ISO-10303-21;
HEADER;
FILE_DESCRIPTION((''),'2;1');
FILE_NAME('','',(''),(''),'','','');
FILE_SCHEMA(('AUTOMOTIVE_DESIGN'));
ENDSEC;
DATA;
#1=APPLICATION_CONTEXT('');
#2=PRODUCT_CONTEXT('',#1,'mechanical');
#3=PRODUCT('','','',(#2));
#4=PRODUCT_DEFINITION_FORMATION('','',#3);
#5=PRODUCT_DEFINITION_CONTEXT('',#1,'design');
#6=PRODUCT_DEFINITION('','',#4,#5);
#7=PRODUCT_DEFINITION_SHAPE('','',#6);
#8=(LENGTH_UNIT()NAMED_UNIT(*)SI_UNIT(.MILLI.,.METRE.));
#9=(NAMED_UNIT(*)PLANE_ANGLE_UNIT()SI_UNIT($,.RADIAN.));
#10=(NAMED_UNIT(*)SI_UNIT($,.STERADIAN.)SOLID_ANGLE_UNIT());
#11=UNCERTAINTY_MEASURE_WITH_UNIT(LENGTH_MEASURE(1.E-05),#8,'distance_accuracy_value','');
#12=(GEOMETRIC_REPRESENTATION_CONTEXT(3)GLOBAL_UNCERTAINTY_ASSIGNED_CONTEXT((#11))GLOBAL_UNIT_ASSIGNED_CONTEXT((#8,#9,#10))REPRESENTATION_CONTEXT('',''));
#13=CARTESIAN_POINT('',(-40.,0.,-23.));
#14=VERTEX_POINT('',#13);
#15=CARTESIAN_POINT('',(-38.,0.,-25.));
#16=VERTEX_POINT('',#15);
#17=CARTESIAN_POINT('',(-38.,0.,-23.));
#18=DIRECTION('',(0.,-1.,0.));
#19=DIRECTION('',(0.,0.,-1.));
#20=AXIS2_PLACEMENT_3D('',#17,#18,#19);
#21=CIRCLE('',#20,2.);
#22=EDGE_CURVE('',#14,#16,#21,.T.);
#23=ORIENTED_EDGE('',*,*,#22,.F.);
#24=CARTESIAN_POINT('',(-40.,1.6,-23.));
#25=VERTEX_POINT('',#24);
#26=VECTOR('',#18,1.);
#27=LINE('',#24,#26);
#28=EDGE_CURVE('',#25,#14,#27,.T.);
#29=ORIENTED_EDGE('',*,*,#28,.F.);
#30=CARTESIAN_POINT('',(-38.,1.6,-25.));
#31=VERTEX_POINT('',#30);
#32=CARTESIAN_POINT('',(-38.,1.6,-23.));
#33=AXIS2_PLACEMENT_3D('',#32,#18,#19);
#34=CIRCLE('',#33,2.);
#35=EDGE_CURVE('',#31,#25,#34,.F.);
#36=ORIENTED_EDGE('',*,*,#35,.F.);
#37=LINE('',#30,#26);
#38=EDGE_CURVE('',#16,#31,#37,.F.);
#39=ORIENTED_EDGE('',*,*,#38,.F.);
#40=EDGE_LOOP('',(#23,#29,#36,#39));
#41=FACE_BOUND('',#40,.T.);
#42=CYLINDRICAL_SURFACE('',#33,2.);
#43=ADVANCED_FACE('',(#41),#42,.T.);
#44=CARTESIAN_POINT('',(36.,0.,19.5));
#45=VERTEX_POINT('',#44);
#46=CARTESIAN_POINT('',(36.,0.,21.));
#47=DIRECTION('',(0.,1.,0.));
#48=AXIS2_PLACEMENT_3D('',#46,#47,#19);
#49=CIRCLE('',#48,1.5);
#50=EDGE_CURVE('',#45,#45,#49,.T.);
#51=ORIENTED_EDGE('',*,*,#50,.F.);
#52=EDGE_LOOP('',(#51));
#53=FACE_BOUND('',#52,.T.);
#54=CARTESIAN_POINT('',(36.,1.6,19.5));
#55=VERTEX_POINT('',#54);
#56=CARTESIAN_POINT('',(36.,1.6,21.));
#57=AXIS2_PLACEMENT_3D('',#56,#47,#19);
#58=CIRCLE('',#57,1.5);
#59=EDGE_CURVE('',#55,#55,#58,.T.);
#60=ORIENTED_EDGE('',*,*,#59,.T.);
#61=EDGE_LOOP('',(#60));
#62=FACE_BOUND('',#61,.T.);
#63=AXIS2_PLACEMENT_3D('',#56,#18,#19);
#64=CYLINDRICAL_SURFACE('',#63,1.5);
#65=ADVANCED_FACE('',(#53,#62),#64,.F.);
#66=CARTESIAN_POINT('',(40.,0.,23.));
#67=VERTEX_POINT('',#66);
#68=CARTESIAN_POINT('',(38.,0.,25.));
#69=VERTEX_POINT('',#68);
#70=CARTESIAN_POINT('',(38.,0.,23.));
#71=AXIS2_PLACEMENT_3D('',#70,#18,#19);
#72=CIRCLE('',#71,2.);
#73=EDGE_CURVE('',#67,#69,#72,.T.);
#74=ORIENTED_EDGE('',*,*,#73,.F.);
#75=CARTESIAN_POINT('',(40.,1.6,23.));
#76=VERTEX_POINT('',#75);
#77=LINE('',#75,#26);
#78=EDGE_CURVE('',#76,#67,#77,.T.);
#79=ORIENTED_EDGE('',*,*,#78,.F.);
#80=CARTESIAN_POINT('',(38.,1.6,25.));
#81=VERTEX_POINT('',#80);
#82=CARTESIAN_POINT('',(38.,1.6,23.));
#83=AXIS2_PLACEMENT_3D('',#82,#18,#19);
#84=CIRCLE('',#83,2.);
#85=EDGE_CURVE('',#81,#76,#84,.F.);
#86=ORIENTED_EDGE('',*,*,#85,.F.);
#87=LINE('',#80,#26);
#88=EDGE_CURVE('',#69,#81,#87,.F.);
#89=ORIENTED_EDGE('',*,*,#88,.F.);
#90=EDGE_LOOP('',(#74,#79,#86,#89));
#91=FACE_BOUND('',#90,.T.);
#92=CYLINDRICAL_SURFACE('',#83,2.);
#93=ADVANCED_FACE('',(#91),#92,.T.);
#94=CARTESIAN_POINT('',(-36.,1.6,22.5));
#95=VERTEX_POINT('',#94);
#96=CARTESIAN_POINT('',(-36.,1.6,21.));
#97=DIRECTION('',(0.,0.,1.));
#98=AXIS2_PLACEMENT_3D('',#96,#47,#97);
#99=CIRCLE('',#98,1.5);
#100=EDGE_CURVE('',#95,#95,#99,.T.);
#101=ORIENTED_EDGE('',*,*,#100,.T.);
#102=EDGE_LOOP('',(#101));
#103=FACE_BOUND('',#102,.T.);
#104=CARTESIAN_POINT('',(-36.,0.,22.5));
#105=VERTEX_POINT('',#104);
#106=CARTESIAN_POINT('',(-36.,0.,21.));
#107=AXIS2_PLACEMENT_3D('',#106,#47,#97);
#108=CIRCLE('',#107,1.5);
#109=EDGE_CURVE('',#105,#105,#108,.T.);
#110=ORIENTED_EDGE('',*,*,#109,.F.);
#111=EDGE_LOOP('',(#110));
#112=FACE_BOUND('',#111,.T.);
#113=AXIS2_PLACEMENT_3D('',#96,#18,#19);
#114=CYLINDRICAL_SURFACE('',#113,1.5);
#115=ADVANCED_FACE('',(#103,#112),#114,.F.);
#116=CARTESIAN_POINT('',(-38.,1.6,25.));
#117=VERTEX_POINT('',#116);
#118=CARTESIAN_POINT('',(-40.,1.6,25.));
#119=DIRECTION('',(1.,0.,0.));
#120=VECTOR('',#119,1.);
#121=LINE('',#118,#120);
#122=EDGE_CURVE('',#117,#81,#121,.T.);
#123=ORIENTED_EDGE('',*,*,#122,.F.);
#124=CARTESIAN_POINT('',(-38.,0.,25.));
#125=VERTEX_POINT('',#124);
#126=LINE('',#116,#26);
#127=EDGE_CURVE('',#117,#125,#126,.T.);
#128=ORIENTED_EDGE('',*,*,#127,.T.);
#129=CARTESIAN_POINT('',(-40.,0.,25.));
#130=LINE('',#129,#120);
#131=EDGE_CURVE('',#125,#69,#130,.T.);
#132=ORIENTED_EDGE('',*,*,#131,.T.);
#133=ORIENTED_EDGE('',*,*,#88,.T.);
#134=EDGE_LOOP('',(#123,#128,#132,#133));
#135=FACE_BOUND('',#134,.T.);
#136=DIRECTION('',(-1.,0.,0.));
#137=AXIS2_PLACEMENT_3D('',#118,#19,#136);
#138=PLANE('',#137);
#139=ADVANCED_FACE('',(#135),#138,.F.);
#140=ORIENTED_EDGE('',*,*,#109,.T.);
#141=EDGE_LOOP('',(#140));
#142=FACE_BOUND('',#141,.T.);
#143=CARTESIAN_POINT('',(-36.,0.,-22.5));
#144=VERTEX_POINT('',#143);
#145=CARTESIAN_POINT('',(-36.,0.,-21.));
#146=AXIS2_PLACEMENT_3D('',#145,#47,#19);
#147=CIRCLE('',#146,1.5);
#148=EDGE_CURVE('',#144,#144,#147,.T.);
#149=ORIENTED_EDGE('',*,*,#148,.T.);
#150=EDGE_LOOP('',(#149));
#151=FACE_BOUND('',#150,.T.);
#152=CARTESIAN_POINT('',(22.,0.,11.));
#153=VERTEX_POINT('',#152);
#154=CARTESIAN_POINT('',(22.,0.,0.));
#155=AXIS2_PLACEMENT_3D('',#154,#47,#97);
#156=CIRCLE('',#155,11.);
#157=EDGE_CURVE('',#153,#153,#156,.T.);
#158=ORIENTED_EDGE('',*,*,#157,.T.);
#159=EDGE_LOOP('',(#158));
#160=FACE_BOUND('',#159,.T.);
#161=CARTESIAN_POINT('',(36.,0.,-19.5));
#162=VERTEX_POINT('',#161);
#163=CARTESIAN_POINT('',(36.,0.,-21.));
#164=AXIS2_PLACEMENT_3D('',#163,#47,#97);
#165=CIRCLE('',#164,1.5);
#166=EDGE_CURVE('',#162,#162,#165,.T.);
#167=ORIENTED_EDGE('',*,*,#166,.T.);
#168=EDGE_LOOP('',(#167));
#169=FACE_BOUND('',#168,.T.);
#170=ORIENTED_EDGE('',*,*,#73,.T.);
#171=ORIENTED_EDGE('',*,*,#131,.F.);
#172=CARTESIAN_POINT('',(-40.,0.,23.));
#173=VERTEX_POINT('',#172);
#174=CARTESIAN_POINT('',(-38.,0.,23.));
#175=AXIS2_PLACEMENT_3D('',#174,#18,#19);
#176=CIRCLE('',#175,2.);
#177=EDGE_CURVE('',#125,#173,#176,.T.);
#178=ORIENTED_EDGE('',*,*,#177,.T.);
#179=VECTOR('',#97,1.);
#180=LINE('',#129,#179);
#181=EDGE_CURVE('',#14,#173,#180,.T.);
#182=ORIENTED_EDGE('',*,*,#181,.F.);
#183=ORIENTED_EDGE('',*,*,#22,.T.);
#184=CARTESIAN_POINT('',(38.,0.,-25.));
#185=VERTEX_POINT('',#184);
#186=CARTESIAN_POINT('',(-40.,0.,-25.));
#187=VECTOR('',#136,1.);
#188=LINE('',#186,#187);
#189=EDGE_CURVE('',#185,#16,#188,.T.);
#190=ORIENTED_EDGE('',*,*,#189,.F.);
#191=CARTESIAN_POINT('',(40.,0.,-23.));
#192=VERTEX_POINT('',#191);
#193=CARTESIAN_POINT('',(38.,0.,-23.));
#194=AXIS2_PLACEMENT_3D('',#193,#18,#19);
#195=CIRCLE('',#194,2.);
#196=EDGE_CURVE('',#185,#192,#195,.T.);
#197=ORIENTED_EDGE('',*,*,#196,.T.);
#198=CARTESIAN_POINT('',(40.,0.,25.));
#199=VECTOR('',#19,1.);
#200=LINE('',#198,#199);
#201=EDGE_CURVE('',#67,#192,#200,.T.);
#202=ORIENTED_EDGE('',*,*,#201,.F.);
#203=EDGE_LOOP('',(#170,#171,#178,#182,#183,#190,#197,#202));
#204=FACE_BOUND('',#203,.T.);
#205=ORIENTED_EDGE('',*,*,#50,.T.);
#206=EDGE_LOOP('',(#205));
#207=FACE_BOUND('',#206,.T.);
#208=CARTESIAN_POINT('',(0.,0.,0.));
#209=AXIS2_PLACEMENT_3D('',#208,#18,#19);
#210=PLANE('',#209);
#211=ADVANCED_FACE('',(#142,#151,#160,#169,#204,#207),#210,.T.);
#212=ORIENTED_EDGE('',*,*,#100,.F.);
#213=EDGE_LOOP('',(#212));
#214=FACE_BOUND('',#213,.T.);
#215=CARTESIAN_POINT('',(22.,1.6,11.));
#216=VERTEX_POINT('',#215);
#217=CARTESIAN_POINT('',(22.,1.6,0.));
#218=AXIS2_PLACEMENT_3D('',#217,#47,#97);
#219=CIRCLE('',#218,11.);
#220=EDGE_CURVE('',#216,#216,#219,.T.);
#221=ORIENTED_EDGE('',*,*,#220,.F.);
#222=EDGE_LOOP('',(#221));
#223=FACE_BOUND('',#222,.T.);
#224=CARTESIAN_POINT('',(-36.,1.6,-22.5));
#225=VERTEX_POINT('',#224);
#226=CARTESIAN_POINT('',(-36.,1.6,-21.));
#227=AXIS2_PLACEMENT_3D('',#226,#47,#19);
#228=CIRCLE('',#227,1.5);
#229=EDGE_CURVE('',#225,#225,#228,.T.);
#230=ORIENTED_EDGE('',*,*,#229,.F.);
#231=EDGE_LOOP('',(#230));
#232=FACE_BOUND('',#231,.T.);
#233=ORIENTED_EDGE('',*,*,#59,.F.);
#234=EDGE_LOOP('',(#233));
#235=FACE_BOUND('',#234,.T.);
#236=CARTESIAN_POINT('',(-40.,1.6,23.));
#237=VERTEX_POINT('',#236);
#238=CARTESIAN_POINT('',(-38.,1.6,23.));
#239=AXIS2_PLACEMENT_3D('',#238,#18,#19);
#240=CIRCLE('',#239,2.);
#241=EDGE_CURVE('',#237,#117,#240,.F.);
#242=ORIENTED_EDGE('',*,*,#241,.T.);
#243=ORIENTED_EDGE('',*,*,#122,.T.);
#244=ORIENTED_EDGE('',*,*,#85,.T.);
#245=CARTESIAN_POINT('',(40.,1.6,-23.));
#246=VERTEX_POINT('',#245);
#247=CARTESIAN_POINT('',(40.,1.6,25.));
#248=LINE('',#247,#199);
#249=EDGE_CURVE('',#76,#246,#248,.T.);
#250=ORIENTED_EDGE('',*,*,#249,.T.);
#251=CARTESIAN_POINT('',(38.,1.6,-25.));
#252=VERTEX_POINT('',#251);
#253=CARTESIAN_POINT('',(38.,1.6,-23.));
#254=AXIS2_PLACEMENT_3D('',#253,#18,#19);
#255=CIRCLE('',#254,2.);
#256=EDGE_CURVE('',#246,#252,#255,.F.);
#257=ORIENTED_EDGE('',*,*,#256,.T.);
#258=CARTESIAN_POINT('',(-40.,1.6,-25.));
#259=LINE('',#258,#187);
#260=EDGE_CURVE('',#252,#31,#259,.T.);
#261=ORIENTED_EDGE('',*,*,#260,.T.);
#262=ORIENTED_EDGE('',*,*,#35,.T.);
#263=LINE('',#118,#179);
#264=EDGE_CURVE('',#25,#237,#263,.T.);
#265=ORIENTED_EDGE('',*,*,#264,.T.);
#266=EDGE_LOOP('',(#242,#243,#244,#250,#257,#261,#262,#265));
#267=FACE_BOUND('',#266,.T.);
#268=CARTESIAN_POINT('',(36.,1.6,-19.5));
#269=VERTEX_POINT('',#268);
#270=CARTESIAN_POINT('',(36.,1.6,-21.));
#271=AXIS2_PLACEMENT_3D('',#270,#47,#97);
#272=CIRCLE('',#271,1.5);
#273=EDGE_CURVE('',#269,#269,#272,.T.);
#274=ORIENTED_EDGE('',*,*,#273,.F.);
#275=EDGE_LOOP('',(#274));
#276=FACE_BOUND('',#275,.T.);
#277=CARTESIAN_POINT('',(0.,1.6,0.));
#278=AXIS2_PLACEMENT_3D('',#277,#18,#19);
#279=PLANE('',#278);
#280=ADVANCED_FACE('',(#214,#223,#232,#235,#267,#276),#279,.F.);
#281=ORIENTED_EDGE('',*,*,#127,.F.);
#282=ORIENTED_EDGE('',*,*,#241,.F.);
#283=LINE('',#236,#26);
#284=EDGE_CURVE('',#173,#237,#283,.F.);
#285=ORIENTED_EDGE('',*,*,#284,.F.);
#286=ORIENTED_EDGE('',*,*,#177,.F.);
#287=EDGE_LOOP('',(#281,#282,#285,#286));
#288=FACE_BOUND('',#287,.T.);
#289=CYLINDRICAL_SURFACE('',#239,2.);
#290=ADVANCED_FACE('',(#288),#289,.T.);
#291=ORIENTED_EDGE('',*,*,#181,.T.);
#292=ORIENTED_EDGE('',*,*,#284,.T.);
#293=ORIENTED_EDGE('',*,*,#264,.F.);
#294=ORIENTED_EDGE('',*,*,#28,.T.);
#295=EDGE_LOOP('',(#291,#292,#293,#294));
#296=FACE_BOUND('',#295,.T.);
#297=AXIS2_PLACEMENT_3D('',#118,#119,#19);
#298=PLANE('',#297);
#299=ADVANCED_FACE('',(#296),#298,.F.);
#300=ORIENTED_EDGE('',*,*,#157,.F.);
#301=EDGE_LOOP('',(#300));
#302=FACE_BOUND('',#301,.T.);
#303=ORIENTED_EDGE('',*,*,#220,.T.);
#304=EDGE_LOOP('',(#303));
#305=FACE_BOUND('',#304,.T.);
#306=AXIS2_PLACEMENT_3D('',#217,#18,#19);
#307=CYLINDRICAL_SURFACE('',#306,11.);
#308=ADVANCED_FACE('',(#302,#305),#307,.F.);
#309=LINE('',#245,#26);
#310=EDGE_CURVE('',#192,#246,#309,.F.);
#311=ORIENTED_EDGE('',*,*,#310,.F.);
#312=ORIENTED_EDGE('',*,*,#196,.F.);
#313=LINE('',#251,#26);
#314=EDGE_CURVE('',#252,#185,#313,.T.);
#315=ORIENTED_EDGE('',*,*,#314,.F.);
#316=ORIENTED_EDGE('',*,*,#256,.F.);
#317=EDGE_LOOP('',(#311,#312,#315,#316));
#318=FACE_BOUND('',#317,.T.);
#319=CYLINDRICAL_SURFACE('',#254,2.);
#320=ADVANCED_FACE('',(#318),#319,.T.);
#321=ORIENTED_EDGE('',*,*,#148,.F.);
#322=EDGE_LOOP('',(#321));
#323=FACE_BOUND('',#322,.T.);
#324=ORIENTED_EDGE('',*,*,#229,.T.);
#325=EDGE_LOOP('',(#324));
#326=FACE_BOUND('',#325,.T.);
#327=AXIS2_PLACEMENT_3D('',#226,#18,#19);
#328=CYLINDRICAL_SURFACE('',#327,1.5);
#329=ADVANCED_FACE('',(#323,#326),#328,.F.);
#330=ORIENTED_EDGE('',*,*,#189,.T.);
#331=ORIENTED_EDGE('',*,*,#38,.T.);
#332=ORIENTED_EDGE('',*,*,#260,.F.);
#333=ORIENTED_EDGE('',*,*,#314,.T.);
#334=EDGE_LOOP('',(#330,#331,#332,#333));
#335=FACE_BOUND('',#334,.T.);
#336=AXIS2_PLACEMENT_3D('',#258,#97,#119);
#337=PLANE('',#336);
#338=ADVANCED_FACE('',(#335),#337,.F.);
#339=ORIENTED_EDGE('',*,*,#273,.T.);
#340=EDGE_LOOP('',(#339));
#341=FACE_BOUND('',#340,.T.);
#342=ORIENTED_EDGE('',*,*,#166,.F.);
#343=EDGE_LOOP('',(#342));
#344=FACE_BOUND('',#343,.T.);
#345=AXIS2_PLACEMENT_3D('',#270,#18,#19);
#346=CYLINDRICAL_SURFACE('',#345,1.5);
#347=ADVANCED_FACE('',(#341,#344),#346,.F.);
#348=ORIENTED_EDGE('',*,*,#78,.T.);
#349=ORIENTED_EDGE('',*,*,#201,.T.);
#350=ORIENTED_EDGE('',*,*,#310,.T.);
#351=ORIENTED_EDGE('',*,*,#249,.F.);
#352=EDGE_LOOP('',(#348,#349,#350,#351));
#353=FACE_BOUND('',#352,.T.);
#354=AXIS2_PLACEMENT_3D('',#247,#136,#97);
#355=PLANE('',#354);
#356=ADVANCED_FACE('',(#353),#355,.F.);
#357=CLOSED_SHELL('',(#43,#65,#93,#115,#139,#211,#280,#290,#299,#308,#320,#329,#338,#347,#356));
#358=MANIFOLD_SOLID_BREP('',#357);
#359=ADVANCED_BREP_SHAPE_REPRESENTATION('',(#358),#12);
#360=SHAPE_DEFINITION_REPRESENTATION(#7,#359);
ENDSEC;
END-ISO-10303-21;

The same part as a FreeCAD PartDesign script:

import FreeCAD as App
import Part
import Sketcher
Q = App.Units.Quantity


def edges_at(feature, points):
    """Names of the edges that pass closest to the given points."""
    edges = feature.Shape.Edges
    near = lambda p: min(range(len(edges)), key=lambda i: edges[i].distToShape(Part.Vertex(*p))[0])
    return sorted({f"Edge{near(p) + 1}" for p in points})

doc = App.newDocument("Part")
params = doc.addObject("Spreadsheet::Sheet", "Params")
for row, (alias, value) in enumerate([
    ("sketch1_diameter", "3 mm"),
    ("sketch1_diameter2", "22 mm"),
    ("sketch1_width", "80 mm"),
    ("sketch1_height", "50 mm"),
    ("pad1_length", "1.6 mm"),
    ("fillet_radius", "2 mm"),
], start=1):
    params.set(f"A{row}", alias)
    params.set(f"B{row}", "=" + value)
    params.setAlias(f"B{row}", alias)

body = doc.addObject("PartDesign::Body", "Body")

# Sketch on XZ plane
sketch1 = body.newObject("Sketcher::SketchObject", "Sketch")
sketch1.AttachmentSupport = (doc.getObject("XZ_Plane"), [""])
sketch1.MapMode = "FlatFace"
sketch1.addGeometry([
    Part.LineSegment(App.Vector(-40, -25, 0), App.Vector(-40, 25, 0)),  # 0
    Part.LineSegment(App.Vector(-40, 25, 0), App.Vector(40, 25, 0)),  # 1
    Part.LineSegment(App.Vector(40, 25, 0), App.Vector(40, -25, 0)),  # 2
    Part.LineSegment(App.Vector(40, -25, 0), App.Vector(-40, -25, 0)),  # 3
    Part.Circle(App.Vector(-36, 21, 0), App.Vector(0, 0, 1), 1.5),  # 4
    Part.Circle(App.Vector(36, 21, 0), App.Vector(0, 0, 1), 1.5),  # 5
    Part.Circle(App.Vector(-36, -21, 0), App.Vector(0, 0, 1), 1.5),  # 6
    Part.Circle(App.Vector(22, 0, 0), App.Vector(0, 0, 1), 11),  # 7
    Part.Circle(App.Vector(36, -21, 0), App.Vector(0, 0, 1), 1.5),  # 8
], False)
sketch1.addConstraint([
    Sketcher.Constraint("Coincident", 0, 2, 1, 1),
    Sketcher.Constraint("Coincident", 1, 2, 2, 1),
    Sketcher.Constraint("Coincident", 2, 2, 3, 1),
    Sketcher.Constraint("Coincident", 3, 2, 0, 1),
    Sketcher.Constraint("Vertical", 0),
    Sketcher.Constraint("Horizontal", 1),
    Sketcher.Constraint("Vertical", 2),
    Sketcher.Constraint("Horizontal", 3),
    Sketcher.Constraint("Equal", 4, 5),
    Sketcher.Constraint("Equal", 5, 6),
    Sketcher.Constraint("Equal", 6, 8),
    Sketcher.Constraint("Symmetric", 5, 3, 6, 3, -1, 1),
    Sketcher.Constraint("Symmetric", 4, 3, 8, 3, -1, 1),
    Sketcher.Constraint("Symmetric", 0, 2, 2, 2, -1, 1),
    Sketcher.Constraint("Symmetric", 4, 3, 5, 3, -2),
    Sketcher.Constraint("PointOnObject", 7, 3, -1),
    Sketcher.Constraint("Diameter", 4, Q("3 mm")),
    Sketcher.Constraint("Diameter", 7, Q("22 mm")),
    Sketcher.Constraint("DistanceX", 1, 1, 1, 2, Q("80 mm")),
    Sketcher.Constraint("DistanceY", 0, 1, 0, 2, Q("50 mm")),
    Sketcher.Constraint("DistanceX", 4, 3, -1, 1, Q("36 mm")),
    Sketcher.Constraint("DistanceY", -1, 1, 4, 3, Q("21 mm")),
    Sketcher.Constraint("DistanceX", -1, 1, 7, 3, Q("22 mm")),
])
sketch1.setExpression("Constraints[16]", "Params.sketch1_diameter")
sketch1.setExpression("Constraints[17]", "Params.sketch1_diameter2")
sketch1.setExpression("Constraints[18]", "Params.sketch1_width")
sketch1.setExpression("Constraints[19]", "Params.sketch1_height")
pad1 = body.newObject("PartDesign::Pad", "Pad")
pad1.Profile = sketch1
pad1.setExpression("Length", "Params.pad1_length")
pad1.Reversed = True
doc.recompute()

fillet = body.newObject("PartDesign::Fillet", "Fillet")
fillet.Base = (pad1, edges_at(pad1, [
    (40, 0.8, 25),
    (-40, 0.8, 25),
    (-40, 0.8, -25),
    (40, 0.8, -25),
]))
fillet.setExpression("Radius", "Params.fillet_radius")

doc.recompute()
